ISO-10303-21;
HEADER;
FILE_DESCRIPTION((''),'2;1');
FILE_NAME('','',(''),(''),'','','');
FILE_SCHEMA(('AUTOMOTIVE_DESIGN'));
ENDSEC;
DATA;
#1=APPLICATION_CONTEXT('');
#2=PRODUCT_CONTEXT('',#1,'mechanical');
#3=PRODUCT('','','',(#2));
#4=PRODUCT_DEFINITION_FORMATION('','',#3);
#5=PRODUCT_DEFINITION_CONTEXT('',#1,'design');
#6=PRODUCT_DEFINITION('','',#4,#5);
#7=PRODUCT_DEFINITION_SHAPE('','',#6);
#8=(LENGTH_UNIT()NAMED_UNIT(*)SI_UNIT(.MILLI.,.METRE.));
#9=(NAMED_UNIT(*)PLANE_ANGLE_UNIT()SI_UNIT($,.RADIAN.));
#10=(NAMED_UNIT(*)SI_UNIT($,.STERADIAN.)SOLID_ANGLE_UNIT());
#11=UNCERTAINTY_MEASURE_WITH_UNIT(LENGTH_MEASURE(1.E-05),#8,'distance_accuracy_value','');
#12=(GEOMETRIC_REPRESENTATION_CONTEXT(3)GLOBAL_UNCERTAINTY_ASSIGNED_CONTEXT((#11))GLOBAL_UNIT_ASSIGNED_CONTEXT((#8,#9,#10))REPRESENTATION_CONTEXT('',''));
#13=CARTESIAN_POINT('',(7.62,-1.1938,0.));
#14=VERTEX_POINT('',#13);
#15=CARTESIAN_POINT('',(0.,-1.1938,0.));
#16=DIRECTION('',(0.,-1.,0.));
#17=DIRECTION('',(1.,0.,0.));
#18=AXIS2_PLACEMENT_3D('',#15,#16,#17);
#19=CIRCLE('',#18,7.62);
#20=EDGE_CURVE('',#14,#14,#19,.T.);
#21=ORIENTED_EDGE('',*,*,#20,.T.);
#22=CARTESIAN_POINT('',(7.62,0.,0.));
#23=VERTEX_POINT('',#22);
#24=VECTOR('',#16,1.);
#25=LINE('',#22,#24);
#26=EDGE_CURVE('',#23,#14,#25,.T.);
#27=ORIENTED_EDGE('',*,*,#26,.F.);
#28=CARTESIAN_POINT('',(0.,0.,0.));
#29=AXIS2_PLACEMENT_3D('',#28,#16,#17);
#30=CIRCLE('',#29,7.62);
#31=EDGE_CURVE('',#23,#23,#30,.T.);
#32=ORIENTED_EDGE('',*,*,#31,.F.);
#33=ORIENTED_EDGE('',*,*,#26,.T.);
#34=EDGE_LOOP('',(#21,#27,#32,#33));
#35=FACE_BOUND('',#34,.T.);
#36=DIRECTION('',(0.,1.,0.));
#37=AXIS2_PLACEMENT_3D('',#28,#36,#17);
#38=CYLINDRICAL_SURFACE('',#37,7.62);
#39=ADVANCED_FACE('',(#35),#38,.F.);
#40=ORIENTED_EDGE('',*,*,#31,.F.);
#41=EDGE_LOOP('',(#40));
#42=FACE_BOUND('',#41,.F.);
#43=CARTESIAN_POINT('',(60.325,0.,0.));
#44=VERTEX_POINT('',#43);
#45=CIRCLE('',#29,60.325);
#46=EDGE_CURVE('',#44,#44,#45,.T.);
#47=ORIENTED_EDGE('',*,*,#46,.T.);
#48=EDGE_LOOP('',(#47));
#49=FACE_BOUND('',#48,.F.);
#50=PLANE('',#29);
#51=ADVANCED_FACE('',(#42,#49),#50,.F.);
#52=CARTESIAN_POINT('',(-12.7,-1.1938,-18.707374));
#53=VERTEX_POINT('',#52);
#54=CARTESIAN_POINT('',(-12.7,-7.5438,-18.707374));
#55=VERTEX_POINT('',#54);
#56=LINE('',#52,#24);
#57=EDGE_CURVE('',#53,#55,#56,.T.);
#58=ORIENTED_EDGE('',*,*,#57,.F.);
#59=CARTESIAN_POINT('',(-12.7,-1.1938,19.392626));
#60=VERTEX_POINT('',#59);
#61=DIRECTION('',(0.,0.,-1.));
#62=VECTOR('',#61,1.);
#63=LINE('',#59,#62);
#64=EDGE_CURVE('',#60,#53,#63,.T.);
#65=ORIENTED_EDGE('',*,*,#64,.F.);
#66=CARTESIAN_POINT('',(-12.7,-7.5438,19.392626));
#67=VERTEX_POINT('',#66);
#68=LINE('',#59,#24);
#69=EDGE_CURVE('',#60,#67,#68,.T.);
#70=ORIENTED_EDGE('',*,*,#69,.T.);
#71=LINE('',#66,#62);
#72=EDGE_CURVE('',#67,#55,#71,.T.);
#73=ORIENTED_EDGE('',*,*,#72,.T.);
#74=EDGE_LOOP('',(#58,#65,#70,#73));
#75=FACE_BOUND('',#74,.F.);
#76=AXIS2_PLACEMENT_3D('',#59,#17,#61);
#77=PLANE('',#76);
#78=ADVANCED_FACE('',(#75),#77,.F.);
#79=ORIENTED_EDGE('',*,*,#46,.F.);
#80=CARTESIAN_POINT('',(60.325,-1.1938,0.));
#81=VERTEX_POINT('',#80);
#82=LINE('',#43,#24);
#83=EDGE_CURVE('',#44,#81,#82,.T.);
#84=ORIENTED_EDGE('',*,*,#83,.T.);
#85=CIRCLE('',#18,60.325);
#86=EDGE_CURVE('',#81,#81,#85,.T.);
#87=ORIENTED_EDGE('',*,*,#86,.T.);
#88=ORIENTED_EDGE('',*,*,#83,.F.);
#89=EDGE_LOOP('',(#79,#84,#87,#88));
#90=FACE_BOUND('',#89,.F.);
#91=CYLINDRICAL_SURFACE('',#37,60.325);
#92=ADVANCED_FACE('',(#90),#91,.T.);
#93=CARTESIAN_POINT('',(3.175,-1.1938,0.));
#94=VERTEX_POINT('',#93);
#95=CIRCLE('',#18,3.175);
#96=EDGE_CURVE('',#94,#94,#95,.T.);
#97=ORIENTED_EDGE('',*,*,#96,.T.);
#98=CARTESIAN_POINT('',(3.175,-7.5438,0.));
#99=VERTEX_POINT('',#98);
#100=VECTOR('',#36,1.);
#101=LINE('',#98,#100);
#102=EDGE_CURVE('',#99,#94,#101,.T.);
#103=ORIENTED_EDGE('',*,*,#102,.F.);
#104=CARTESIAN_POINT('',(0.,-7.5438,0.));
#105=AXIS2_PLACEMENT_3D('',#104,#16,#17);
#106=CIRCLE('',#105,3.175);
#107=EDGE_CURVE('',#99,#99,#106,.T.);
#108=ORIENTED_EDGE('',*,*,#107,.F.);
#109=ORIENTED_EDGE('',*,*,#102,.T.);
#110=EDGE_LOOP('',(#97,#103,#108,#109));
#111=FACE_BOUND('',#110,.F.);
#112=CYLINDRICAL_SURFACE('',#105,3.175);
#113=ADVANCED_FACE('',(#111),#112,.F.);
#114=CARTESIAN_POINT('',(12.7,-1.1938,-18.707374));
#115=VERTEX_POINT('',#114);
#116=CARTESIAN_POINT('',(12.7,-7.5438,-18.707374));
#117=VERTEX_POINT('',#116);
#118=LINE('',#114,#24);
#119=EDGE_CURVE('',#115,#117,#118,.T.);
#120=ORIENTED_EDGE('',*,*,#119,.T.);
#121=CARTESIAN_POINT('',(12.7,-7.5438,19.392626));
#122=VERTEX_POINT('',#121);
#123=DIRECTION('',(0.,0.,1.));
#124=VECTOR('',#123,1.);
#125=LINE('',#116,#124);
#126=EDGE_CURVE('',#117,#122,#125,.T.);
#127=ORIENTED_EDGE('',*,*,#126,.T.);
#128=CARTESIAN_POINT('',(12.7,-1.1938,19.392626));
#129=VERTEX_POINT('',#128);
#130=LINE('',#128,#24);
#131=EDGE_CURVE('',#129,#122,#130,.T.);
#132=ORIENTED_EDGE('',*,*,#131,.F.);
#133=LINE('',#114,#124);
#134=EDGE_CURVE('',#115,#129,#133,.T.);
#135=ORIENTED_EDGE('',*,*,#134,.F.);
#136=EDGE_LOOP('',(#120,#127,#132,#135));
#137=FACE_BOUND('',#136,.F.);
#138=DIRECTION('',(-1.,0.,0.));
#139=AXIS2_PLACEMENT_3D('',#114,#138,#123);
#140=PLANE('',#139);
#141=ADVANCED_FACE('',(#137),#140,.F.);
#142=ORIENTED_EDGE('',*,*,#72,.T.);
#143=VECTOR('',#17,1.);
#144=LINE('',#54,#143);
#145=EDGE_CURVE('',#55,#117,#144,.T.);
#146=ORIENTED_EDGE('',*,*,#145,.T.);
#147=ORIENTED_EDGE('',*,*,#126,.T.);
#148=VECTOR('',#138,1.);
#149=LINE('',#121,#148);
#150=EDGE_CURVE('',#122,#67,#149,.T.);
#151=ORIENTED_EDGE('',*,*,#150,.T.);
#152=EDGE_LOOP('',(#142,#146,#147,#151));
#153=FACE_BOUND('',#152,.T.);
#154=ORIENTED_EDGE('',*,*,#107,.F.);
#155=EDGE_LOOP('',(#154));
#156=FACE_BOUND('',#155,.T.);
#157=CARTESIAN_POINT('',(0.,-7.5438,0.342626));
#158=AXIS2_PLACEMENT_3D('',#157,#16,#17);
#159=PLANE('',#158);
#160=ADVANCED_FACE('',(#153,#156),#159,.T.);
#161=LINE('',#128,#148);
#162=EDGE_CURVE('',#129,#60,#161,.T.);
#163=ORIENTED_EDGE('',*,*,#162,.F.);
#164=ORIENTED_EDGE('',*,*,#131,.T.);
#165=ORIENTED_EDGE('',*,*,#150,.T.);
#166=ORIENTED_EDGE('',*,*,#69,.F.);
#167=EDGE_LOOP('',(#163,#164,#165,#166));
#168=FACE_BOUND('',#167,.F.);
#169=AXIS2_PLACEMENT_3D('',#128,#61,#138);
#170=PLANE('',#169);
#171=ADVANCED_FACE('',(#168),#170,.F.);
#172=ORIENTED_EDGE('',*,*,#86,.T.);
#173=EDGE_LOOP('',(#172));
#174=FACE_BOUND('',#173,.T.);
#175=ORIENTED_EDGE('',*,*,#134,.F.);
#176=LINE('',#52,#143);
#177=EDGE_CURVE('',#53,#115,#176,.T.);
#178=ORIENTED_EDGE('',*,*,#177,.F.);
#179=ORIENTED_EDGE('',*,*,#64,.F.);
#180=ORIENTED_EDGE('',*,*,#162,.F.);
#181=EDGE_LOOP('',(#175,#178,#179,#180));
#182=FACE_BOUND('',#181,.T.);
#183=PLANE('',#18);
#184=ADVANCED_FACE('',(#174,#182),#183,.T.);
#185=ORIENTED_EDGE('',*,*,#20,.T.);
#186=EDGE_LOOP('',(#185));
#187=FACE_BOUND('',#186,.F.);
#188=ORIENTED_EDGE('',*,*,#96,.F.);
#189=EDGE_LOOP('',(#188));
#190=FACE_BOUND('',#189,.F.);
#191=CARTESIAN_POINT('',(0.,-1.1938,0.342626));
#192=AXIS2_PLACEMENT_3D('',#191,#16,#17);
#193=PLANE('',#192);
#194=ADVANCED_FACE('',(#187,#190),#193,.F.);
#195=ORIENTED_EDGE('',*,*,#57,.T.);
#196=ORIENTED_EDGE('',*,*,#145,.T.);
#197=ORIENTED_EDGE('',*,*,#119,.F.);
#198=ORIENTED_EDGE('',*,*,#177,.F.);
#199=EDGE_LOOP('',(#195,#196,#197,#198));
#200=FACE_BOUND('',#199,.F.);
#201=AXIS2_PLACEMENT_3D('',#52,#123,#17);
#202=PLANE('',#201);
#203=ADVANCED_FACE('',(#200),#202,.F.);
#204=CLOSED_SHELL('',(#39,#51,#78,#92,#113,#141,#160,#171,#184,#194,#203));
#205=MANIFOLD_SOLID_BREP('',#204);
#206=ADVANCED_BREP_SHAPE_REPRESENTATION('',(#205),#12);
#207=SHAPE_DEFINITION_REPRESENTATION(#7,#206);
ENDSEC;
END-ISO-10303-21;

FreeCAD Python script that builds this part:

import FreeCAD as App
import Part
import Sketcher
from FreeCAD import Vector
Q = App.Units.Quantity

doc = App.newDocument("Part")
body = doc.addObject("PartDesign::Body", "Body")

sketch1 = body.newObject("Sketcher::SketchObject", "Sketch")
sketch1.AttachmentSupport = (doc.getObject("XZ_Plane"), [""])
sketch1.MapMode = "FlatFace"
sketch1.addGeometry(Part.Circle(Vector(0, 0, 0), Vector(0, 0, 1), 60), False)
sketch1.addGeometry(Part.Circle(Vector(0, 0, 0), Vector(0, 0, 1), 8), False)
sketch1.addConstraint(Sketcher.Constraint("Coincident", 0, 3, -1, 1))
sketch1.addConstraint(Sketcher.Constraint("Coincident", 1, 3, -1, 1))
sketch1.addConstraint(Sketcher.Constraint("Diameter", 1, Q("0.6 in")))
sketch1.addConstraint(Sketcher.Constraint("Diameter", 0, Q("4.75 in")))
pad1 = body.newObject("PartDesign::Pad", "Pad")
pad1.Profile = sketch1
pad1.Length = Q("0.047 in")

sketch2 = body.newObject("Sketcher::SketchObject", "Sketch001")
sketch2.AttachmentSupport = (doc.getObject("XZ_Plane"), [""])
sketch2.MapMode = "FlatFace"
sketch2.AttachmentOffset = App.Placement(Vector(0, 0, 0.047 * 25.4), App.Rotation())
sketch2.addGeometry(Part.LineSegment(Vector(13, 19, 0), Vector(-13, 19, 0)), False)
sketch2.addGeometry(Part.LineSegment(Vector(-13, 19, 0), Vector(-13, -19, 0)), False)
sketch2.addGeometry(Part.LineSegment(Vector(-13, -19, 0), Vector(13, -19, 0)), False)
sketch2.addGeometry(Part.LineSegment(Vector(13, -19, 0), Vector(13, 19, 0)), False)
sketch2.addConstraint(Sketcher.Constraint("Coincident", 0, 2, 1, 1))
sketch2.addConstraint(Sketcher.Constraint("Coincident", 1, 2, 2, 1))
sketch2.addConstraint(Sketcher.Constraint("Coincident", 2, 2, 3, 1))
sketch2.addConstraint(Sketcher.Constraint("Coincident", 3, 2, 0, 1))
sketch2.addConstraint(Sketcher.Constraint("Horizontal", 0))
sketch2.addConstraint(Sketcher.Constraint("Vertical", 1))
sketch2.addConstraint(Sketcher.Constraint("Horizontal", 2))
sketch2.addConstraint(Sketcher.Constraint("Vertical", 3))
sketch2.addConstraint(Sketcher.Constraint("DistanceX", 0, 2, 0, 1, Q("1 in")))
sketch2.addConstraint(Sketcher.Constraint("DistanceY", 1, 2, 1, 1, Q("1.5 in")))
sketch2.addConstraint(Sketcher.Constraint("DistanceX", 0, 2, -1, 1, Q("0.5 in")))
sketch2.addConstraint(Sketcher.Constraint("DistanceY", -1, 1, 0, 2, 19.392626))
pad2 = body.newObject("PartDesign::Pad", "Pad001")
pad2.Profile = sketch2
pad2.Length = Q("0.25 in")

sketch3 = body.newObject("Sketcher::SketchObject", "Sketch002")
sketch3.AttachmentSupport = (doc.getObject("XZ_Plane"), [""])
sketch3.MapMode = "FlatFace"
sketch3.AttachmentOffset = App.Placement(Vector(0, 0, 0.297 * 25.4), App.Rotation())
sketch3.addGeometry(Part.Circle(Vector(0, 0, 0), Vector(0, 0, 1), 3.2), False)
sketch3.addConstraint(Sketcher.Constraint("Coincident", 0, 3, -1, 1))
sketch3.addConstraint(Sketcher.Constraint("Diameter", 0, Q("0.25 in")))
pocket1 = body.newObject("PartDesign::Pocket", "Pocket")
pocket1.Profile = sketch3
pocket1.Length = Q("1 in")

doc.recompute()
